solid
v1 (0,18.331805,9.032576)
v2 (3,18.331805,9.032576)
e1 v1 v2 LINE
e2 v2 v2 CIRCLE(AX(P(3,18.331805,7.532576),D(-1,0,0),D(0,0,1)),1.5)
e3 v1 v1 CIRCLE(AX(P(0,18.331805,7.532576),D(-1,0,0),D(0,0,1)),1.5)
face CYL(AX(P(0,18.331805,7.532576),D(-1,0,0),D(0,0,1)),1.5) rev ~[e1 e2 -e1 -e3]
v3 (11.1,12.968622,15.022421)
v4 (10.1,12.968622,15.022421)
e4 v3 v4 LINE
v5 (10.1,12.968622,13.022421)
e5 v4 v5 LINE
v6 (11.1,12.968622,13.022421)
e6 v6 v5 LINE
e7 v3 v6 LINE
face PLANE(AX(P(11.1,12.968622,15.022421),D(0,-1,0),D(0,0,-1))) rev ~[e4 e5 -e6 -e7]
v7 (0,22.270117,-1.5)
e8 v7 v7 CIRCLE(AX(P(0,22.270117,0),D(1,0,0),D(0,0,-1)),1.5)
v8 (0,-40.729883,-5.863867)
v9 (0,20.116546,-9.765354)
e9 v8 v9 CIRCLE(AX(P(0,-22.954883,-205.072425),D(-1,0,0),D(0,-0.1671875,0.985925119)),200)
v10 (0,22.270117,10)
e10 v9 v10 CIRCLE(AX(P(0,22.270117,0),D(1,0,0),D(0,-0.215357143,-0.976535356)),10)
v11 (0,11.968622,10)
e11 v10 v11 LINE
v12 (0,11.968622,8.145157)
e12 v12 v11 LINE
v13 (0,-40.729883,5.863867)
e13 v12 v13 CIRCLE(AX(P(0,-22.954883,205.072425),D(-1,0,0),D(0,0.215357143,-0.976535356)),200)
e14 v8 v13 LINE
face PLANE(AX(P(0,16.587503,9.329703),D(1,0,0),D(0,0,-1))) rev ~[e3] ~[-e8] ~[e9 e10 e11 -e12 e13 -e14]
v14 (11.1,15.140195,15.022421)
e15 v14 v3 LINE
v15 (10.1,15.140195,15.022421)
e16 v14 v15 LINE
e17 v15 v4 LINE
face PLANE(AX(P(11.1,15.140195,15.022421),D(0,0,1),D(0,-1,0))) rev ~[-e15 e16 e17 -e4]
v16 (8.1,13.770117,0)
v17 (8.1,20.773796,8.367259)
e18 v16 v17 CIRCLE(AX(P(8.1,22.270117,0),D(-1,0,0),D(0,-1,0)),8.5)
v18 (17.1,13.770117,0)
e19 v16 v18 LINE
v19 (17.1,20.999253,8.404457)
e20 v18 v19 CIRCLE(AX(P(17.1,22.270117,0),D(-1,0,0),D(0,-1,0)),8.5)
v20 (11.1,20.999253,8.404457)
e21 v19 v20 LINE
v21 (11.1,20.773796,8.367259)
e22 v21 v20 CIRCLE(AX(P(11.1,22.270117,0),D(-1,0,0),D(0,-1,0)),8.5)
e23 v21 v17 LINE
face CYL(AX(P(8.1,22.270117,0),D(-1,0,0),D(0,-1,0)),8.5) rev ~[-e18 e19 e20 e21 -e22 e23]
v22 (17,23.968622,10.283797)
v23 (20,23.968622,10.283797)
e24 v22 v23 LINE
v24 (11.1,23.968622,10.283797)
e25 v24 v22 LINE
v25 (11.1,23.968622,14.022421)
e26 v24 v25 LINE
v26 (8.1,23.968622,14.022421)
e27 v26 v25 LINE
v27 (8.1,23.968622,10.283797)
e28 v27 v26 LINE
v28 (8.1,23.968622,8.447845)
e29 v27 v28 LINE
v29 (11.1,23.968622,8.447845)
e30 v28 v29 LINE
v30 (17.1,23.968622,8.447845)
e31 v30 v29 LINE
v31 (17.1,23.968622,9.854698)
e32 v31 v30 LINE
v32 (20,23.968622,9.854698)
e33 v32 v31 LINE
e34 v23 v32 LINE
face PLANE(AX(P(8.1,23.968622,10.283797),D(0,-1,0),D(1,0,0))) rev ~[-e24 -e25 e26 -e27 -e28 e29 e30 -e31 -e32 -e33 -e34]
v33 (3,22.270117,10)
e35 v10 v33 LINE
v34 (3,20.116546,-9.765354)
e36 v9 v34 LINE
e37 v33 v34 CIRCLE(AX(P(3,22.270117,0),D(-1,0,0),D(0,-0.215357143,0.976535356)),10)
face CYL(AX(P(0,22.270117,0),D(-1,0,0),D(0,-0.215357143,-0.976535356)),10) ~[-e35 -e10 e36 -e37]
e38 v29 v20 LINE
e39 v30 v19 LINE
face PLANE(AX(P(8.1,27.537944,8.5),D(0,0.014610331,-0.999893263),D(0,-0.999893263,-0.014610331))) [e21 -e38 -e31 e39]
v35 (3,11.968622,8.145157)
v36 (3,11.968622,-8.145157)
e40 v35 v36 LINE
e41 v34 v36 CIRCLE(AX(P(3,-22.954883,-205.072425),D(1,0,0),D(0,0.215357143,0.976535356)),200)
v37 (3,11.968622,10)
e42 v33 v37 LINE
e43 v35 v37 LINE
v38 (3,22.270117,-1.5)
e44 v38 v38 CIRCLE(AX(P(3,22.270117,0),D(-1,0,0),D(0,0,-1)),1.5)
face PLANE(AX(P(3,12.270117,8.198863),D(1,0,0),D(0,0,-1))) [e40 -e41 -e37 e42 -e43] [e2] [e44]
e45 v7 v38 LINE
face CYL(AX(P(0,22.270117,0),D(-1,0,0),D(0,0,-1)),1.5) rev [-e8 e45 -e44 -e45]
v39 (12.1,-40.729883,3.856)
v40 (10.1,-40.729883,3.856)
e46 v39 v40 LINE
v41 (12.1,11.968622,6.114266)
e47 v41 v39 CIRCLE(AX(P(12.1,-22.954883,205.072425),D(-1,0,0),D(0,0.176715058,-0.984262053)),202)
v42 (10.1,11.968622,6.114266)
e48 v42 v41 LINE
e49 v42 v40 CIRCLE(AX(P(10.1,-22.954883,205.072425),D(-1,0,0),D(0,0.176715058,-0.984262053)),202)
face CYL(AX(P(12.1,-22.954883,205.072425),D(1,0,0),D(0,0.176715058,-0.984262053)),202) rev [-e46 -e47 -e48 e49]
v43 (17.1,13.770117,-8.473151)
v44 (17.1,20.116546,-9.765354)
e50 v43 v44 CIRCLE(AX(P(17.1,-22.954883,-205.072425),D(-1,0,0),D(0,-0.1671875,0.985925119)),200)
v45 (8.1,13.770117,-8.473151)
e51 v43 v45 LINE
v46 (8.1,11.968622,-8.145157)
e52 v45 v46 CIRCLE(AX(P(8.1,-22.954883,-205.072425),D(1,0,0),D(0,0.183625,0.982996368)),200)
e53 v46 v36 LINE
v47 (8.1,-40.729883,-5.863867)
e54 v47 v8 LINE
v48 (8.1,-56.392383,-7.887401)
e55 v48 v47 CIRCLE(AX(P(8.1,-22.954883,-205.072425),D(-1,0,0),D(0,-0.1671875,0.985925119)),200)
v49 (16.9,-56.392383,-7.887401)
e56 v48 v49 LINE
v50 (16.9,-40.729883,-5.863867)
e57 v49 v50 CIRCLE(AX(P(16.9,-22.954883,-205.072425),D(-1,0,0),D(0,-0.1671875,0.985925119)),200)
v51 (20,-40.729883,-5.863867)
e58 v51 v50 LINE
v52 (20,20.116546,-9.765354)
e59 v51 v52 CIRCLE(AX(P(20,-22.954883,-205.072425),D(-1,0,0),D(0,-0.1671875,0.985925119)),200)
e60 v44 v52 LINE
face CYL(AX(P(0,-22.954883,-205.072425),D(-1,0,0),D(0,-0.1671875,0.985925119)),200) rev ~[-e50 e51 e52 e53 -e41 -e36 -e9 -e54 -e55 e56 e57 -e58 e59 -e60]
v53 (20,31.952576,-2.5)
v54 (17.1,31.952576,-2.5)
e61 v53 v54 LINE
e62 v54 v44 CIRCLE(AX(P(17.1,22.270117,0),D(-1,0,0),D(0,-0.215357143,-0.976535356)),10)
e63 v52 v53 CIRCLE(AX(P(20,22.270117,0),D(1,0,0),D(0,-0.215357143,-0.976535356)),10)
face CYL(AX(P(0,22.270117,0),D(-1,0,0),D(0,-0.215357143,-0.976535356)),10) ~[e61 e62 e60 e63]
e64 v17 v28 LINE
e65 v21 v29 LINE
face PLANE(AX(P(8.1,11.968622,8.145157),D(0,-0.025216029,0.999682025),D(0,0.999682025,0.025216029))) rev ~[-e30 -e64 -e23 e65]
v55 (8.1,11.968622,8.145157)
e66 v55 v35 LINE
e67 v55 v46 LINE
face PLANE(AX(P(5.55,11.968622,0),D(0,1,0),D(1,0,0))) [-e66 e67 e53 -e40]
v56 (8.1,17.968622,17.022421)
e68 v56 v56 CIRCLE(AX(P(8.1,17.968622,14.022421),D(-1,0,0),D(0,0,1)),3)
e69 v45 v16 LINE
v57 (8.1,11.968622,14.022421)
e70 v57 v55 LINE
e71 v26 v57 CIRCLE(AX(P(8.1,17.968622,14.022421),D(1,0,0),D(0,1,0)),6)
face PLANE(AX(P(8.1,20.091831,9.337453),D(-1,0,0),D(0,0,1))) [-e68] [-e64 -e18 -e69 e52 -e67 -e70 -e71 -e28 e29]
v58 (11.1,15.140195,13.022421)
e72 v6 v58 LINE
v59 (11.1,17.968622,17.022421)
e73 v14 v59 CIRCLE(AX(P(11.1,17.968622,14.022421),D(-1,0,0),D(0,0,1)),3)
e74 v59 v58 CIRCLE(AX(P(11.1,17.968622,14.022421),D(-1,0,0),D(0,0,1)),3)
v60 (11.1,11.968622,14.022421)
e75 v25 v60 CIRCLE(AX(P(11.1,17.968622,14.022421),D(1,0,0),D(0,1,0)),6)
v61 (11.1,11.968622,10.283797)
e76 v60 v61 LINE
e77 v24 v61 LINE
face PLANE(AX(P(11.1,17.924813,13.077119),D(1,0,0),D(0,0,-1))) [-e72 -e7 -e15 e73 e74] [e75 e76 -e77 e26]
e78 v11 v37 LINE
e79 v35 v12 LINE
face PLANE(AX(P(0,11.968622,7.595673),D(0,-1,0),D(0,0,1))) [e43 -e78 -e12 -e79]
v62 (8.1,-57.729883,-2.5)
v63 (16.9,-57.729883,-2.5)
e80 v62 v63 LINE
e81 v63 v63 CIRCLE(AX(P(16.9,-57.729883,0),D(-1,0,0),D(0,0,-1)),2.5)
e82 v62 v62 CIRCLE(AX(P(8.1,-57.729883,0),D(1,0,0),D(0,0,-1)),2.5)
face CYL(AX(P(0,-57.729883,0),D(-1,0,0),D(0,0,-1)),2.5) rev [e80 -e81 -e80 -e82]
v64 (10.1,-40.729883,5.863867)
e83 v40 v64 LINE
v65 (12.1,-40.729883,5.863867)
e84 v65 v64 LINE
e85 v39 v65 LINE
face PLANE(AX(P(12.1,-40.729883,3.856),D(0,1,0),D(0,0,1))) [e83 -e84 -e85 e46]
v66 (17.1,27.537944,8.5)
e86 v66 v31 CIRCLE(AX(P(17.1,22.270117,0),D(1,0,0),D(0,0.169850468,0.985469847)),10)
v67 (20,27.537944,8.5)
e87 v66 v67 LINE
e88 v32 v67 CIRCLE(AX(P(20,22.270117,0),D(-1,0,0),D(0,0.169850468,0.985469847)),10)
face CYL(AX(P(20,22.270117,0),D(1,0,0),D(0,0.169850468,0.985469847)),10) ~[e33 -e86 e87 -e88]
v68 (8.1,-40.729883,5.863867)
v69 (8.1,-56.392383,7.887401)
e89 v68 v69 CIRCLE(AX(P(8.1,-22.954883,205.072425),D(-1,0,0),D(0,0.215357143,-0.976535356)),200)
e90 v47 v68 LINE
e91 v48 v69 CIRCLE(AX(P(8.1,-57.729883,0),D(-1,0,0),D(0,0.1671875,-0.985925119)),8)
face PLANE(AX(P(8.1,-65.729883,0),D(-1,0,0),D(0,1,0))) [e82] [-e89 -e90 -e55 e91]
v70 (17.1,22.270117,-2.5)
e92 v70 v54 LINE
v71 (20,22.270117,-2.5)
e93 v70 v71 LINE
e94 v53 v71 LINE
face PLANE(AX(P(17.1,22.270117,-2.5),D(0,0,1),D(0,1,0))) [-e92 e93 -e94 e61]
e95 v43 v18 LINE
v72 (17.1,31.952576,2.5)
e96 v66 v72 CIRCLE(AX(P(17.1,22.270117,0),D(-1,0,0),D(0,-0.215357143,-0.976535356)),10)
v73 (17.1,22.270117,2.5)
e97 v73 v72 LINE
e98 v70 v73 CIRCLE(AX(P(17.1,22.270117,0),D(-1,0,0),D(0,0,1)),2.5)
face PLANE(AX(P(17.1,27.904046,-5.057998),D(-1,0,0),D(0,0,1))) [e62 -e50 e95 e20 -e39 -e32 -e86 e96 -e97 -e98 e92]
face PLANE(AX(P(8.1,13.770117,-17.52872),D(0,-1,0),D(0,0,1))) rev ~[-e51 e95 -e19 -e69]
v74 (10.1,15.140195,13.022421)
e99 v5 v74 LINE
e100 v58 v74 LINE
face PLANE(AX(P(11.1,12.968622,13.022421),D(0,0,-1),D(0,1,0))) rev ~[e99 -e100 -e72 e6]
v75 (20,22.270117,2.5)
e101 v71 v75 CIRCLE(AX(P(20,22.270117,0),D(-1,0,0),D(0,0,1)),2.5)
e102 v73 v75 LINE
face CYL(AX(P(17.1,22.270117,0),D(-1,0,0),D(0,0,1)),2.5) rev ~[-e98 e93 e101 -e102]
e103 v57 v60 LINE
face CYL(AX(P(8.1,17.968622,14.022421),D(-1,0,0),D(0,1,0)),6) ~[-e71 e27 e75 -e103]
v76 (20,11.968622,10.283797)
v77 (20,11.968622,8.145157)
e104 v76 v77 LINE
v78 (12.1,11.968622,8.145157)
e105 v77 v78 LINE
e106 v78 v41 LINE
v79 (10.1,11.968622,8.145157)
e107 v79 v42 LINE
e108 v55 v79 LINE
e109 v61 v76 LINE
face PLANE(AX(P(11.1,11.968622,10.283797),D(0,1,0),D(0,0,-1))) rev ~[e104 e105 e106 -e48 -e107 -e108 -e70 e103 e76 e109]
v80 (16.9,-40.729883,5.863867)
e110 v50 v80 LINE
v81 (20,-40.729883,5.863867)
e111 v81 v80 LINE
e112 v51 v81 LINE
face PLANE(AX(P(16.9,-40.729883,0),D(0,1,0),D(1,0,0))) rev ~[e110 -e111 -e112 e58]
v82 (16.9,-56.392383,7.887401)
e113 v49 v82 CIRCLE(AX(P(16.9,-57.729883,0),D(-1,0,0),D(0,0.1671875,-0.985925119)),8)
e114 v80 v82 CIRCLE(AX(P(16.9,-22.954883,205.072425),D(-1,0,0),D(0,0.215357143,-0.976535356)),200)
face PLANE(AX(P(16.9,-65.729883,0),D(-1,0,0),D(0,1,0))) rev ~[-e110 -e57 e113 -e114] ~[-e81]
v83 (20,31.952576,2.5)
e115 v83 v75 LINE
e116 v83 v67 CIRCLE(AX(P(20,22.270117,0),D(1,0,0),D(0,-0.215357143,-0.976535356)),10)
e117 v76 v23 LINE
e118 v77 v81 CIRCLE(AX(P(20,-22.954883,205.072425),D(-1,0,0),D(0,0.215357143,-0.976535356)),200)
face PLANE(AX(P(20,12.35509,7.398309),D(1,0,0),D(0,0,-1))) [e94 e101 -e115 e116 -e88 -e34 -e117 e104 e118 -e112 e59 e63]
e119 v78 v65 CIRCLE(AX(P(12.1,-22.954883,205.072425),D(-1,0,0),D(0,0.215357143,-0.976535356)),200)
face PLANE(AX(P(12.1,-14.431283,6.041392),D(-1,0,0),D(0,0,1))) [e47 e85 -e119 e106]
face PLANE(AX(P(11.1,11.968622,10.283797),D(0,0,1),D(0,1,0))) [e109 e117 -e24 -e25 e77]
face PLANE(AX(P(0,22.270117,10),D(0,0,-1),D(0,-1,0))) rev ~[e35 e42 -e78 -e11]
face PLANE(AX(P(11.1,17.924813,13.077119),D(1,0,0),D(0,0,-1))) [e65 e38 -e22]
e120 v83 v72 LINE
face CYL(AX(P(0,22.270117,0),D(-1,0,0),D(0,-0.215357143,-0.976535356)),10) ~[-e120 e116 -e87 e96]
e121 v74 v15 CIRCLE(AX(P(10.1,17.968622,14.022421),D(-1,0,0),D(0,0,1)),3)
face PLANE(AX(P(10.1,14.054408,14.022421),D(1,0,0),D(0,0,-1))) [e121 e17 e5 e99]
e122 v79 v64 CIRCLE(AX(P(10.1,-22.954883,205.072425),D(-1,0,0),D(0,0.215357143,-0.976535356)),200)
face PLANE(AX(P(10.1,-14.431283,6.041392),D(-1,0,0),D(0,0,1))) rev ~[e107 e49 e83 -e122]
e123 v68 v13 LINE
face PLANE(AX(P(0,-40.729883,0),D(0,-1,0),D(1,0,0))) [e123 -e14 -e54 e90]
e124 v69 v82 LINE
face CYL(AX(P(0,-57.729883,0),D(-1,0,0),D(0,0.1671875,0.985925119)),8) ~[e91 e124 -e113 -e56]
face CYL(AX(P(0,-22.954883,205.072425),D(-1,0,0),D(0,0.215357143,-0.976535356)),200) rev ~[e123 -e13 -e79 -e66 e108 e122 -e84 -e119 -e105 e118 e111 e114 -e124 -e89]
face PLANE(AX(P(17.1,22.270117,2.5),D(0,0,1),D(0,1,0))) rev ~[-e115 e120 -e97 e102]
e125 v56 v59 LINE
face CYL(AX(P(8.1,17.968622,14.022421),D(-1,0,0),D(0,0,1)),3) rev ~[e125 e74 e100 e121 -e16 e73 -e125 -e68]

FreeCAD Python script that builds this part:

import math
import FreeCAD as App
import Part
import Sketcher

V = App.Vector

doc = App.newDocument("Part")
body = doc.addObject("PartDesign::Body", "Body")

# Sketch on YZ plane
sketch1 = body.newObject("Sketcher::SketchObject", "Sketch")
sketch1.AttachmentSupport = (doc.getObject("YZ_Plane"), [""])
sketch1.MapMode = "FlatFace"
sketch1.addGeometry([
    Part.ArcOfCircle(Part.Circle(V(22.3, 0, 0), V(0, 0, 1), 10), math.radians(-102), math.radians(102)),  # 0
    Part.ArcOfCircle(Part.Circle(V(-23, 205.1, 0), V(0, 0, 1), 200), math.radians(-100), math.radians(-78)),  # 1
    Part.ArcOfCircle(Part.Circle(V(-57.7, 0, 0), V(0, 0, 1), 8), math.radians(80), math.radians(280)),  # 2
    Part.ArcOfCircle(Part.Circle(V(-23, -205.1, 0), V(0, 0, 1), 200), math.radians(78), math.radians(100)),  # 3
    Part.Circle(V(-57.7, 0, 0), V(0, 0, 1), 2.5),  # 4
    Part.Circle(V(22.3, 0, 0), V(0, 0, 1), 1.5),  # 5
], False)
sketch1.addConstraint([
    Sketcher.Constraint("Tangent", 0, 2, 1, 2),
    Sketcher.Constraint("Tangent", 1, 1, 2, 1),
    Sketcher.Constraint("Tangent", 2, 2, 3, 2),
    Sketcher.Constraint("Tangent", 3, 1, 0, 1),
    Sketcher.Constraint("Coincident", 4, 3, 2, 3),
    Sketcher.Constraint("Coincident", 5, 3, 0, 3),
    Sketcher.Constraint("Equal", 1, 3),
    Sketcher.Constraint("Symmetric", 1, 3, 3, 3, -1),
    Sketcher.Constraint("Diameter", 4, 5.0),
    Sketcher.Constraint("Diameter", 5, 3.0),
    Sketcher.Constraint("Radius", 0, 10.0),
    Sketcher.Constraint("Radius", 1, 200.0),
    Sketcher.Constraint("Radius", 2, 8.0),
    Sketcher.Constraint("DistanceX", 2, 3, 0, 3, 80.0),
    Sketcher.Constraint("DistanceX", -1, 1, 0, 3, 22.270117),
])
pad1 = body.newObject("PartDesign::Pad", "Pad")
pad1.Profile = sketch1
pad1.Length = 20

# Sketch on XY plane
sketch2 = body.newObject("Sketcher::SketchObject", "Sketch001")
sketch2.AttachmentSupport = (doc.getObject("XY_Plane"), [""])
sketch2.MapMode = "FlatFace"
sketch2.addGeometry([
    Part.LineSegment(V(0, -40.7, 0), V(0, -65.7, 0)),  # 0
    Part.LineSegment(V(0, -65.7, 0), V(8.1, -65.7, 0)),  # 1
    Part.LineSegment(V(8.1, -65.7, 0), V(8.1, -40.7, 0)),  # 2
    Part.LineSegment(V(8.1, -40.7, 0), V(0, -40.7, 0)),  # 3
    Part.LineSegment(V(16.9, -40.7, 0), V(16.9, -65.7, 0)),  # 4
    Part.LineSegment(V(16.9, -65.7, 0), V(20, -65.7, 0)),  # 5
    Part.LineSegment(V(20, -65.7, 0), V(20, -40.7, 0)),  # 6
    Part.LineSegment(V(20, -40.7, 0), V(16.9, -40.7, 0)),  # 7
    Part.LineSegment(V(3, 32.3, 0), V(3, 12.3, 0)),  # 8
    Part.LineSegment(V(3, 12.3, 0), V(8.1, 12.3, 0)),  # 9
    Part.LineSegment(V(8.1, 12.3, 0), V(8.1, 32.3, 0)),  # 10
    Part.LineSegment(V(8.1, 32.3, 0), V(3, 32.3, 0)),  # 11
], False)
sketch2.addConstraint([
    Sketcher.Constraint("Coincident", 0, 2, 1, 1),
    Sketcher.Constraint("Coincident", 1, 2, 2, 1),
    Sketcher.Constraint("Coincident", 2, 2, 3, 1),
    Sketcher.Constraint("Coincident", 3, 2, 0, 1),
    Sketcher.Constraint("Coincident", 4, 2, 5, 1),
    Sketcher.Constraint("Coincident", 5, 2, 6, 1),
    Sketcher.Constraint("Coincident", 6, 2, 7, 1),
    Sketcher.Constraint("Coincident", 7, 2, 4, 1),
    Sketcher.Constraint("Coincident", 8, 2, 9, 1),
    Sketcher.Constraint("Coincident", 9, 2, 10, 1),
    Sketcher.Constraint("Coincident", 10, 2, 11, 1),
    Sketcher.Constraint("Coincident", 11, 2, 8, 1),
    Sketcher.Constraint("Vertical", 0),
    Sketcher.Constraint("Horizontal", 1),
    Sketcher.Constraint("Vertical", 2),
    Sketcher.Constraint("Horizontal", 3),
    Sketcher.Constraint("Vertical", 4),
    Sketcher.Constraint("Horizontal", 5),
    Sketcher.Constraint("Vertical", 6),
    Sketcher.Constraint("Horizontal", 7),
    Sketcher.Constraint("Vertical", 8),
    Sketcher.Constraint("Horizontal", 9),
    Sketcher.Constraint("Vertical", 10),
    Sketcher.Constraint("Horizontal", 11),
    Sketcher.Constraint("PointOnObject", 0, 2, -2),
    Sketcher.Constraint("Horizontal", 1, 2, 4, 2),
    Sketcher.Constraint("Horizontal", 3, 2, 6, 2),
    Sketcher.Constraint("Vertical", 2, 2, 9, 2),
    Sketcher.Constraint("DistanceY", 0, 2, 0, 1, 25.0),
    Sketcher.Constraint("DistanceY", 8, 2, 8, 1, 20.0),
    Sketcher.Constraint("DistanceX", 1, 1, 1, 2, 8.1),
    Sketcher.Constraint("DistanceX", 5, 1, 5, 2, 3.1),
    Sketcher.Constraint("DistanceX", 9, 1, 9, 2, 5.1),
    Sketcher.Constraint("DistanceX", -1, 1, 5, 2, 20.0),
    Sketcher.Constraint("DistanceY", 3, 2, 8, 2, 53.0),
    Sketcher.Constraint("DistanceY", 0, 2, -1, 1, 65.729883),
])
pocket1 = body.newObject("PartDesign::Pocket", "Pocket")
pocket1.Profile = sketch2
pocket1.Type = "ThroughAll"
pocket1.Midplane = True

# Sketch on YZ plane
sketch3 = body.newObject("Sketcher::SketchObject", "Sketch002")
sketch3.AttachmentSupport = (doc.getObject("YZ_Plane"), [""])
sketch3.MapMode = "FlatFace"
sketch3.AttachmentOffset = App.Placement(V(0, 0, 8.1), App.Rotation())
sketch3.addGeometry([
    Part.LineSegment(V(22, 8, 0), V(41, 8, 0)),  # 0
    Part.LineSegment(V(41, 8, 0), V(41, -18, 0)),  # 1
    Part.LineSegment(V(41, -18, 0), V(14, -18, 0)),  # 2
    Part.LineSegment(V(14, -18, 0), V(14, 0, 0)),  # 3
    Part.ArcOfCircle(Part.Circle(V(22, 0, 0), V(0, 0, 1), 8), math.radians(90), math.radians(180)),  # 4
], False)
sketch3.addConstraint([
    Sketcher.Constraint("Coincident", 0, 2, 1, 1),
    Sketcher.Constraint("Coincident", 1, 2, 2, 1),
    Sketcher.Constraint("Coincident", 2, 2, 3, 1),
    Sketcher.Constraint("Tangent", 3, 2, 4, 2),
    Sketcher.Constraint("Tangent", 4, 1, 0, 1),
    Sketcher.Constraint("Horizontal", 0),
    Sketcher.Constraint("Vertical", 1),
    Sketcher.Constraint("Horizontal", 2),
    Sketcher.Constraint("Vertical", 3),
    Sketcher.Constraint("PointOnObject", 4, 3, -1),
    Sketcher.Constraint("Radius", 4, 8.5),
    Sketcher.Constraint("DistanceY", 1, 2, 1, 1, 26.02872),
    Sketcher.Constraint("DistanceX", 0, 1, 0, 2, 18.639416),
    Sketcher.Constraint("DistanceX", -1, 1, 4, 3, 22.270117),
])
pocket2 = body.newObject("PartDesign::Pocket", "Pocket001")
pocket2.Profile = sketch3
pocket2.Length = 9
pocket2.Reversed = True

# Sketch on YZ plane
sketch4 = body.newObject("Sketcher::SketchObject", "Sketch003")
sketch4.AttachmentSupport = (doc.getObject("YZ_Plane"), [""])
sketch4.MapMode = "FlatFace"
sketch4.AttachmentOffset = App.Placement(V(0, 0, 8.1), App.Rotation())
sketch4.addGeometry([
    Part.LineSegment(V(27.5, 8.5, 0), V(12.7, 8.3, 0)),
    Part.LineSegment(V(12.7, 8.3, 0), V(12.7, 10.3, 0)),
    Part.LineSegment(V(12.7, 10.3, 0), V(27.5, 10.3, 0)),
    Part.LineSegment(V(27.5, 10.3, 0), V(27.5, 8.5, 0)),
], False)
sketch4.addConstraint([
    Sketcher.Constraint("Coincident", 0, 2, 1, 1),
    Sketcher.Constraint("Coincident", 1, 2, 2, 1),
    Sketcher.Constraint("Coincident", 2, 2, 3, 1),
    Sketcher.Constraint("Coincident", 3, 2, 0, 1),
    Sketcher.Constraint("Vertical", 1),
    Sketcher.Constraint("Horizontal", 2),
    Sketcher.Constraint("Vertical", 3),
    Sketcher.Constraint("DistanceY", 1, 1, 1, 2, 2.0),
    Sketcher.Constraint("DistanceY", -1, 1, 3, 2, 8.5),
    Sketcher.Constraint("DistanceX", 2, 1, 2, 2, 14.796385),
    Sketcher.Constraint("DistanceY", 3, 2, 3, 1, 1.783797),
    Sketcher.Constraint("DistanceX", -1, 1, 0, 2, 12.741559),
])
pad2 = body.newObject("PartDesign::Pad", "Pad001")
pad2.Profile = sketch4
pad2.Type = "UpToLast"

# Sketch on YZ plane
sketch5 = body.newObject("Sketcher::SketchObject", "Sketch004")
sketch5.AttachmentSupport = (doc.getObject("YZ_Plane"), [""])
sketch5.MapMode = "FlatFace"
sketch5.AttachmentOffset = App.Placement(V(0, 0, 8.1), App.Rotation())
sketch5.addGeometry([
    Part.LineSegment(V(24, 8.4, 0), V(12, 8.1, 0)),  # 0
    Part.LineSegment(V(12, 8.1, 0), V(12, 14, 0)),  # 1
    Part.ArcOfCircle(Part.Circle(V(18, 14, 0), V(0, 0, 1), 6), math.radians(0), math.radians(180)),  # 2
    Part.LineSegment(V(24, 14, 0), V(24, 8.4, 0)),  # 3
    Part.Circle(V(18, 14, 0), V(0, 0, 1), 3),  # 4
], False)
sketch5.addConstraint([
    Sketcher.Constraint("Coincident", 0, 2, 1, 1),
    Sketcher.Constraint("Tangent", 1, 2, 2, 2),
    Sketcher.Constraint("Tangent", 2, 1, 3, 1),
    Sketcher.Constraint("Coincident", 3, 2, 0, 1),
    Sketcher.Constraint("Vertical", 1),
    Sketcher.Constraint("Vertical", 3),
    Sketcher.Constraint("Coincident", 4, 3, 2, 3),
    Sketcher.Constraint("Diameter", 4, 6.0),
    Sketcher.Constraint("Radius", 2, 6.0),
    Sketcher.Constraint("DistanceY", 1, 1, 1, 2, 5.877265),
    Sketcher.Constraint("DistanceY", 3, 2, 3, 1, 5.574576),
    Sketcher.Constraint("DistanceX", -1, 1, 2, 3, 17.968622),
    Sketcher.Constraint("DistanceY", -1, 1, 2, 3, 14.022421),
])
pad3 = body.newObject("PartDesign::Pad", "Pad002")
pad3.Profile = sketch5
pad3.Length = 3

# Sketch on YZ plane
sketch6 = body.newObject("Sketcher::SketchObject", "Sketch005")
sketch6.AttachmentSupport = (doc.getObject("YZ_Plane"), [""])
sketch6.MapMode = "FlatFace"
sketch6.AttachmentOffset = App.Placement(V(0, 0, 11.1), App.Rotation())
sketch6.addGeometry([
    Part.LineSegment(V(13, 15, 0), V(13, 13, 0)),
    Part.LineSegment(V(13, 13, 0), V(15.1, 13, 0)),
    Part.LineSegment(V(15.1, 13, 0), V(15.1, 15, 0)),
    Part.LineSegment(V(15.1, 15, 0), V(13, 15, 0)),
], False)
sketch6.addConstraint([
    Sketcher.Constraint("Coincident", 0, 2, 1, 1),
    Sketcher.Constraint("Coincident", 1, 2, 2, 1),
    Sketcher.Constraint("Coincident", 2, 2, 3, 1),
    Sketcher.Constraint("Coincident", 3, 2, 0, 1),
    Sketcher.Constraint("Vertical", 0),
    Sketcher.Constraint("Horizontal", 1),
    Sketcher.Constraint("Vertical", 2),
    Sketcher.Constraint("Horizontal", 3),
    Sketcher.Constraint("DistanceY", 0, 2, 0, 1, 2.0),
    Sketcher.Constraint("DistanceX", 1, 1, 1, 2, 2.171573),
    Sketcher.Constraint("DistanceY", -1, 1, 0, 2, 13.022421),
    Sketcher.Constraint("DistanceX", -1, 1, 0, 2, 12.968622),
])
pocket3 = body.newObject("PartDesign::Pocket", "Pocket002")
pocket3.Profile = sketch6
pocket3.Length = 1

# Sketch on YZ plane
sketch7 = body.newObject("Sketcher::SketchObject", "Sketch006")
sketch7.AttachmentSupport = (doc.getObject("YZ_Plane"), [""])
sketch7.MapMode = "FlatFace"
sketch7.AttachmentOffset = App.Placement(V(0, 0, 17.1), App.Rotation())
sketch7.addGeometry(Part.Circle(V(22.3, 0, 0), V(0, 0, 1), 2.5), False)
sketch7.addConstraint([
    Sketcher.Constraint("PointOnObject", 0, 3, -1),
    Sketcher.Constraint("Diameter", 0, 5.0),
    Sketcher.Constraint("DistanceX", -1, 1, 0, 3, 22.270117),
])
pocket4 = body.newObject("PartDesign::Pocket", "Pocket003")
pocket4.Profile = sketch7
pocket4.Length = 4
pocket4.Reversed = True

# Sketch on YZ plane
sketch8 = body.newObject("Sketcher::SketchObject", "Sketch007")
sketch8.AttachmentSupport = (doc.getObject("YZ_Plane"), [""])
sketch8.MapMode = "FlatFace"
sketch8.AttachmentOffset = App.Placement(V(0, 0, 12.1), App.Rotation())
sketch8.addGeometry([
    Part.LineSegment(V(12.7, 8.3, 0), V(12.7, 6.3, 0)),
    Part.ArcOfCircle(Part.Circle(V(-23, 205.1, 0), V(0, 0, 1), 202), math.radians(-95.05), math.radians(-79.82)),
    Part.LineSegment(V(-40.7, 3.9, 0), V(-40.7, 7.8, 0)),
    Part.LineSegment(V(-40.7, 7.8, 0), V(12.7, 8.3, 0)),
], False)
sketch8.addConstraint([
    Sketcher.Constraint("Coincident", 0, 2, 1, 2),
    Sketcher.Constraint("Coincident", 1, 1, 2, 1),
    Sketcher.Constraint("Coincident", 2, 2, 3, 1),
    Sketcher.Constraint("Coincident", 3, 2, 0, 1),
    Sketcher.Constraint("Vertical", 0),
    Sketcher.Constraint("Vertical", 2),
    Sketcher.Constraint("Radius", 1, 202.0),
    Sketcher.Constraint("DistanceY", -1, 1, 1, 1, 3.856),
    Sketcher.Constraint("DistanceX", 1, 1, 1, 3, 17.775),
    Sketcher.Constraint("DistanceY", 2, 2, 1, 3, 197.2394),
    Sketcher.Constraint("Distance", 3, 53.473342),
    Sketcher.Constraint("DistanceY", 0, 2, 0, 1, 2.032307),
    Sketcher.Constraint("DistanceX", -1, 1, 0, 2, 12.741559),
])
pocket5 = body.newObject("PartDesign::Pocket", "Pocket004")
pocket5.Profile = sketch8
pocket5.Length = 2

# Sketch on YZ plane
sketch9 = body.newObject("Sketcher::SketchObject", "Sketch008")
sketch9.AttachmentSupport = (doc.getObject("YZ_Plane"), [""])
sketch9.MapMode = "FlatFace"
sketch9.addGeometry(Part.Circle(V(18.3, 7.5, 0), V(0, 0, 1), 1.5), False)
sketch9.addConstraint([
    Sketcher.Constraint("Diameter", 0, 3.0),
    Sketcher.Constraint("DistanceX", -1, 1, 0, 3, 18.331805),
    Sketcher.Constraint("DistanceY", -1, 1, 0, 3, 7.532576),
])
pocket6 = body.newObject("PartDesign::Pocket", "Pocket005")
pocket6.Profile = sketch9
pocket6.Type = "UpToFirst"
pocket6.Reversed = True

# Sketch on YZ plane
sketch10 = body.newObject("Sketcher::SketchObject", "Sketch009")
sketch10.AttachmentSupport = (doc.getObject("YZ_Plane"), [""])
sketch10.MapMode = "FlatFace"
sketch10.addGeometry([
    Part.LineSegment(V(12, 10, 0), V(22.3, 10, 0)),
    Part.LineSegment(V(22.3, 10, 0), V(12, 7.6, 0)),
    Part.LineSegment(V(12, 7.6, 0), V(12, 10, 0)),
], False)
sketch10.addConstraint([
    Sketcher.Constraint("Coincident", 0, 2, 1, 1),
    Sketcher.Constraint("Coincident", 1, 2, 2, 1),
    Sketcher.Constraint("Coincident", 2, 2, 0, 1),
    Sketcher.Constraint("Horizontal", 0),
    Sketcher.Constraint("Vertical", 2),
    Sketcher.Constraint("DistanceY", -1, 1, 0, 2, 10.0),
    Sketcher.Constraint("DistanceX", 0, 1, 0, 2, 10.301495),
    Sketcher.Constraint("DistanceY", 2, 1, 2, 2, 2.404327),
    Sketcher.Constraint("DistanceX", -1, 1, 0, 2, 22.270117),
])
pad4 = body.newObject("PartDesign::Pad", "Pad003")
pad4.Profile = sketch10
pad4.Length = 3

# Sketch on YZ plane
sketch11 = body.newObject("Sketcher::SketchObject", "Sketch010")
sketch11.AttachmentSupport = (doc.getObject("YZ_Plane"), [""])
sketch11.MapMode = "FlatFace"
sketch11.AttachmentOffset = App.Placement(V(0, 0, 20), App.Rotation())
sketch11.addGeometry([
    Part.LineSegment(V(23.97, 10.28, 0), V(23.97, 9.85, 0)),
    Part.ArcOfCircle(Part.Circle(V(22.27, 0, 0), V(0, 0, 1), 10), math.radians(58), math.radians(80)),
    Part.LineSegment(V(27.54, 8.5, 0), V(27.54, 10.28, 0)),
    Part.LineSegment(V(27.54, 10.28, 0), V(23.97, 10.28, 0)),
], False)
sketch11.addConstraint([
    Sketcher.Constraint("Coincident", 0, 2, 1, 2),
    Sketcher.Constraint("Coincident", 1, 1, 2, 1),
    Sketcher.Constraint("Coincident", 2, 2, 3, 1),
    Sketcher.Constraint("Coincident", 3, 2, 0, 1),
    Sketcher.Constraint("Vertical", 0),
    Sketcher.Constraint("Vertical", 2),
    Sketcher.Constraint("Horizontal", 3),
    Sketcher.Constraint("PointOnObject", 1, 3, -1),
    Sketcher.Constraint("Radius", 1, 10.0),
    Sketcher.Constraint("DistanceY", -1, 1, 1, 1, 8.5),
    Sketcher.Constraint("DistanceY", 0, 2, 0, 1, 0.429098),
    Sketcher.Constraint("DistanceY", -1, 1, 0, 2, 9.854698),
    Sketcher.Constraint("DistanceX", -1, 1, 0, 2, 23.968622),
])
pocket7 = body.newObject("PartDesign::Pocket", "Pocket006")
pocket7.Profile = sketch11
pocket7.Length = 3

# Sketch on XY plane
sketch12 = body.newObject("Sketcher::SketchObject", "Sketch011")
sketch12.AttachmentSupport = (doc.getObject("XY_Plane"), [""])
sketch12.MapMode = "FlatFace"
sketch12.AttachmentOffset = App.Placement(V(0, 0, 10.283797), App.Rotation())
sketch12.addGeometry([
    Part.LineSegment(V(8.1, 27.5, 0), V(8.1, 24, 0)),
    Part.LineSegment(V(8.1, 24, 0), V(17.1, 24, 0)),
    Part.LineSegment(V(17.1, 24, 0), V(17.1, 27.5, 0)),
    Part.LineSegment(V(17.1, 27.5, 0), V(8.1, 27.5, 0)),
], False)
sketch12.addConstraint([
    Sketcher.Constraint("Coincident", 0, 2, 1, 1),
    Sketcher.Constraint("Coincident", 1, 2, 2, 1),
    Sketcher.Constraint("Coincident", 2, 2, 3, 1),
    Sketcher.Constraint("Coincident", 3, 2, 0, 1),
    Sketcher.Constraint("Vertical", 0),
    Sketcher.Constraint("Horizontal", 1),
    Sketcher.Constraint("Vertical", 2),
    Sketcher.Constraint("Horizontal", 3),
    Sketcher.Constraint("DistanceX", 1, 1, 1, 2, 9.0),
    Sketcher.Constraint("DistanceX", -1, 1, 0, 2, 8.1),
    Sketcher.Constraint("DistanceY", 0, 2, 0, 1, 3.569322),
    Sketcher.Constraint("DistanceY", -1, 1, 0, 2, 23.968622),
])
pocket8 = body.newObject("PartDesign::Pocket", "Pocket007")
pocket8.Profile = sketch12
pocket8.Length = 3

# Sketch on YZ plane
sketch13 = body.newObject("Sketcher::SketchObject", "Sketch012")
sketch13.AttachmentSupport = (doc.getObject("YZ_Plane"), [""])
sketch13.MapMode = "FlatFace"
sketch13.AttachmentOffset = App.Placement(V(0, 0, 11.1), App.Rotation())
sketch13.addGeometry([
    Part.LineSegment(V(12.7, 10.3, 0), V(12, 10.3, 0)),
    Part.LineSegment(V(12, 10.3, 0), V(12, 4.5, 0)),
    Part.LineSegment(V(12, 4.5, 0), V(12.7, 4.5, 0)),
    Part.LineSegment(V(12.7, 4.5, 0), V(12.7, 10.3, 0)),
], False)
sketch13.addConstraint([
    Sketcher.Constraint("Coincident", 0, 2, 1, 1),
    Sketcher.Constraint("Coincident", 1, 2, 2, 1),
    Sketcher.Constraint("Coincident", 2, 2, 3, 1),
    Sketcher.Constraint("Coincident", 3, 2, 0, 1),
    Sketcher.Constraint("Horizontal", 0),
    Sketcher.Constraint("Vertical", 1),
    Sketcher.Constraint("Horizontal", 2),
    Sketcher.Constraint("Vertical", 3),
    Sketcher.Constraint("DistanceX", 0, 2, 0, 1, 0.772937),
    Sketcher.Constraint("DistanceY", 1, 2, 1, 1, 5.770975),
    Sketcher.Constraint("DistanceX", -1, 1, 2, 2, 12.741559),
    Sketcher.Constraint("DistanceY", -1, 1, 0, 2, 10.283797),
])
pad5 = body.newObject("PartDesign::Pad", "Pad004")
pad5.Profile = sketch13
pad5.Type = "TwoLengths"
pad5.Length = 8.9
pad5.Length2 = 1

# Sketch on XZ plane
sketch14 = body.newObject("Sketcher::SketchObject", "Sketch013")
sketch14.AttachmentSupport = (doc.getObject("XZ_Plane"), [""])
sketch14.MapMode = "FlatFace"
sketch14.AttachmentOffset = App.Placement(V(0, 0, -12.270117), App.Rotation())
sketch14.addGeometry([
    Part.LineSegment(V(3, -8, 0), V(3, 8, 0)),
    Part.LineSegment(V(3, 8, 0), V(8, 8, 0)),
    Part.LineSegment(V(8, 8, 0), V(8, -8, 0)),
    Part.LineSegment(V(8, -8, 0), V(3, -8, 0)),
], False)
sketch14.addConstraint([
    Sketcher.Constraint("Coincident", 0, 2, 1, 1),
    Sketcher.Constraint("Coincident", 1, 2, 2, 1),
    Sketcher.Constraint("Coincident", 2, 2, 3, 1),
    Sketcher.Constraint("Coincident", 3, 2, 0, 1),
    Sketcher.Constraint("Vertical", 0),
    Sketcher.Constraint("Horizontal", 1),
    Sketcher.Constraint("Vertical", 2),
    Sketcher.Constraint("Horizontal", 3),
    Sketcher.Constraint("DistanceX", 1, 1, 1, 2, 5.1),
    Sketcher.Constraint("DistanceX", -1, 1, 0, 2, 3.0),
    Sketcher.Constraint("DistanceY", 0, 1, 0, 2, 16.397726),
    Sketcher.Constraint("DistanceY", -1, 1, 0, 2, 8.198863),
])
pocket9 = body.newObject("PartDesign::Pocket", "Pocket008")
pocket9.Profile = sketch14
pocket9.Length = 0.301495
pocket9.Reversed = True

# Sketch on YZ plane
sketch15 = body.newObject("Sketcher::SketchObject", "Sketch014")
sketch15.AttachmentSupport = (doc.getObject("YZ_Plane"), [""])
sketch15.MapMode = "FlatFace"
sketch15.AttachmentOffset = App.Placement(V(0, 0, 17.1), App.Rotation())
sketch15.addGeometry([
    Part.LineSegment(V(35, -2, 0), V(22, -2, 0)),
    Part.LineSegment(V(22, -2, 0), V(22, 2, 0)),
    Part.LineSegment(V(22, 2, 0), V(35, 2, 0)),
    Part.LineSegment(V(35, 2, 0), V(35, -2, 0)),
], False)
sketch15.addConstraint([
    Sketcher.Constraint("Coincident", 0, 2, 1, 1),
    Sketcher.Constraint("Coincident", 1, 2, 2, 1),
    Sketcher.Constraint("Coincident", 2, 2, 3, 1),
    Sketcher.Constraint("Coincident", 3, 2, 0, 1),
    Sketcher.Constraint("Horizontal", 0),
    Sketcher.Constraint("Vertical", 1),
    Sketcher.Constraint("Horizontal", 2),
    Sketcher.Constraint("Vertical", 3),
    Sketcher.Constraint("DistanceY", 1, 1, 1, 2, 5.0),
    Sketcher.Constraint("DistanceY", 0, 2, -1, 1, 2.5),
    Sketcher.Constraint("DistanceX", 0, 2, 0, 1, 12.419236),
    Sketcher.Constraint("DistanceX", -1, 1, 0, 2, 22.270117),
])
pocket10 = body.newObject("PartDesign::Pocket", "Pocket009")
pocket10.Profile = sketch15
pocket10.Length = 10
pocket10.Reversed = True

doc.recompute()
